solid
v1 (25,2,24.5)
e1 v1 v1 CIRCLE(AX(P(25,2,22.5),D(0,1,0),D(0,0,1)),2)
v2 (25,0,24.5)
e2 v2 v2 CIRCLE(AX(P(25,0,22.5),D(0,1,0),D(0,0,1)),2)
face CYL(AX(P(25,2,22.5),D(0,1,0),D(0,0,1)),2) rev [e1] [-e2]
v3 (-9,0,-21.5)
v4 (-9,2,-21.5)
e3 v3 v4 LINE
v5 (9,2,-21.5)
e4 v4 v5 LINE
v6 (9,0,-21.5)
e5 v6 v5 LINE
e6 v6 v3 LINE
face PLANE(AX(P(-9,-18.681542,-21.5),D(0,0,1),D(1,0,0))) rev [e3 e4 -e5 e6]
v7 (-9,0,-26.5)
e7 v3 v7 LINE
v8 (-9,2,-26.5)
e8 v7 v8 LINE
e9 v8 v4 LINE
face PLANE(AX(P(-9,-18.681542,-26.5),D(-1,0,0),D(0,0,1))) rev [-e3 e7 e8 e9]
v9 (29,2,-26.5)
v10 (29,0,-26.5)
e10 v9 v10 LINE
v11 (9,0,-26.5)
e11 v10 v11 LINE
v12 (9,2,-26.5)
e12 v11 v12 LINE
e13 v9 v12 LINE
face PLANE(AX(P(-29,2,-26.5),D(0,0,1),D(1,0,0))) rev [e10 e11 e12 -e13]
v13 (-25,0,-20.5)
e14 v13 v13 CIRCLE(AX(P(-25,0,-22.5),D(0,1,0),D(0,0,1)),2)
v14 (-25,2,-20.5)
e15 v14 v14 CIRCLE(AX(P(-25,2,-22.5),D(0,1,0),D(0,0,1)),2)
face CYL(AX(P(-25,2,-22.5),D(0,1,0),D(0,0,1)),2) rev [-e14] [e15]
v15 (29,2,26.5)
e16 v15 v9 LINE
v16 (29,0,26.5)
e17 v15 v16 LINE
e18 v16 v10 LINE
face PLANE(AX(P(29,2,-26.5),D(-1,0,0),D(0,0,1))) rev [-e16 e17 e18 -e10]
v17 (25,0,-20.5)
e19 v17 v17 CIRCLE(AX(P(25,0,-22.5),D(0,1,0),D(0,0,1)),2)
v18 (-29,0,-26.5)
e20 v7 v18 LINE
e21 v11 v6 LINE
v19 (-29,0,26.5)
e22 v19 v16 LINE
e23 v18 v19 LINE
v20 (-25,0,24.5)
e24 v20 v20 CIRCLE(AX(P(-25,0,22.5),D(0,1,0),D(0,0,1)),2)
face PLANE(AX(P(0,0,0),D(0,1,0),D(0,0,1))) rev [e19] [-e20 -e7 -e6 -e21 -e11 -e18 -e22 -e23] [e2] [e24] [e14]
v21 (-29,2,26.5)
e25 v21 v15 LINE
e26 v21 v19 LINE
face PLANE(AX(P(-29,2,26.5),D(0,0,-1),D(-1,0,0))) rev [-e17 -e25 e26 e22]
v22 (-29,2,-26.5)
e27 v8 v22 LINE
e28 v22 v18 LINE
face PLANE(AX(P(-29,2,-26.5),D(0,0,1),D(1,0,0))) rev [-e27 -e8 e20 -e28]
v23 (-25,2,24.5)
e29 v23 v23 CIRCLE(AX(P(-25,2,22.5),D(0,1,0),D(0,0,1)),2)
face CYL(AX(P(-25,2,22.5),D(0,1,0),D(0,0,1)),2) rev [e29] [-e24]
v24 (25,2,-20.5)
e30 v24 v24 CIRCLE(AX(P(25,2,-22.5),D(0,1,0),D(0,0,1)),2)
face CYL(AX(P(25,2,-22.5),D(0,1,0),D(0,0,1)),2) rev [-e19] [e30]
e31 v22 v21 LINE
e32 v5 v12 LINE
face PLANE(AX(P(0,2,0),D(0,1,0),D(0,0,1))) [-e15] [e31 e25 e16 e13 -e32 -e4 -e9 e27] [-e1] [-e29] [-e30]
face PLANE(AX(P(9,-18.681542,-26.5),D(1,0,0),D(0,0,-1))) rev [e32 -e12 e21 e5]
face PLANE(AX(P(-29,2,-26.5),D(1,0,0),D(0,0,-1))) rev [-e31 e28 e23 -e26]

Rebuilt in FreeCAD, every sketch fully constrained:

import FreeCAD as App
import Part
import Sketcher

V = App.Vector
Q = App.Units.Quantity

doc = App.newDocument("Part")
params = doc.addObject("Spreadsheet::Sheet", "Params")
for row, (alias, value) in enumerate([
    ("sketch1_width", "58 mm"),
    ("sketch1_height", "53 mm"),
    ("pad1_length", "2 mm"),
    ("sketch2_diameter", "4 mm"),
    ("hole_diameter", "4 mm"),
    ("hole_depth", "2 mm"),
    ("sketch3_width", "18 mm"),
    ("sketch3_height", "5 mm"),
    ("pocket1_length", "2 mm"),
], start=1):
    params.set(f"A{row}", alias)
    params.set(f"B{row}", "=" + value)
    params.setAlias(f"B{row}", alias)

body = doc.addObject("PartDesign::Body", "Body")

# Sketch on XZ plane
sketch1 = body.newObject("Sketcher::SketchObject", "Sketch")
sketch1.AttachmentSupport = (doc.getObject("XZ_Plane"), [""])
sketch1.MapMode = "FlatFace"
sketch1.addGeometry(Part.LineSegment(V(-29, -26, 0), V(-29, 26, 0)), False)
sketch1.addGeometry(Part.LineSegment(V(-29, 26, 0), V(29, 26, 0)), False)
sketch1.addGeometry(Part.LineSegment(V(29, 26, 0), V(29, -26, 0)), False)
sketch1.addGeometry(Part.LineSegment(V(29, -26, 0), V(-29, -26, 0)), False)
sketch1.addConstraint(Sketcher.Constraint("Coincident", 0, 2, 1, 1))
sketch1.addConstraint(Sketcher.Constraint("Coincident", 1, 2, 2, 1))
sketch1.addConstraint(Sketcher.Constraint("Coincident", 2, 2, 3, 1))
sketch1.addConstraint(Sketcher.Constraint("Coincident", 3, 2, 0, 1))
sketch1.addConstraint(Sketcher.Constraint("Vertical", 0))
sketch1.addConstraint(Sketcher.Constraint("Horizontal", 1))
sketch1.addConstraint(Sketcher.Constraint("Vertical", 2))
sketch1.addConstraint(Sketcher.Constraint("Horizontal", 3))
sketch1.addConstraint(Sketcher.Constraint("Symmetric", 0, 2, 2, 2, -1, 1))
sketch1.addConstraint(Sketcher.Constraint("DistanceX", 1, 1, 1, 2, Q("58 mm")))
sketch1.addConstraint(Sketcher.Constraint("DistanceY", 0, 1, 0, 2, Q("53 mm")))
sketch1.setExpression("Constraints[9]", "Params.sketch1_width")
sketch1.setExpression("Constraints[10]", "Params.sketch1_height")
pad1 = body.newObject("PartDesign::Pad", "Pad")
pad1.Profile = sketch1
pad1.setExpression("Length", "Params.pad1_length")
pad1.Reversed = True

# Sketch on XZ plane
sketch2 = body.newObject("Sketcher::SketchObject", "Sketch001")
sketch2.AttachmentSupport = (doc.getObject("XZ_Plane"), [""])
sketch2.MapMode = "FlatFace"
sketch2.AttachmentOffset = App.Placement(V(0, 0, -2), App.Rotation())
sketch2.addGeometry(Part.Circle(V(25, -22.5, 0), V(0, 0, 1), 2), False)
sketch2.addGeometry(Part.Circle(V(-25, -22.5, 0), V(0, 0, 1), 2), False)
sketch2.addGeometry(Part.Circle(V(-25, 22.5, 0), V(0, 0, 1), 2), False)
sketch2.addGeometry(Part.Circle(V(25, 22.5, 0), V(0, 0, 1), 2), False)
sketch2.addConstraint(Sketcher.Constraint("Equal", 0, 1))
sketch2.addConstraint(Sketcher.Constraint("Equal", 1, 2))
sketch2.addConstraint(Sketcher.Constraint("Equal", 2, 3))
sketch2.addConstraint(Sketcher.Constraint("Symmetric", 0, 3, 2, 3, -1, 1))
sketch2.addConstraint(Sketcher.Constraint("Symmetric", 1, 3, 3, 3, -1, 1))
sketch2.addConstraint(Sketcher.Constraint("Symmetric", 0, 3, 1, 3, -2))
sketch2.addConstraint(Sketcher.Constraint("Diameter", 0, Q("4 mm")))
sketch2.addConstraint(Sketcher.Constraint("DistanceX", -1, 1, 0, 3, Q("25 mm")))
sketch2.addConstraint(Sketcher.Constraint("DistanceY", 1, 3, 2, 3, Q("45 mm")))
sketch2.setExpression("Constraints[6]", "Params.sketch2_diameter")
doc.recompute()
hole = body.newObject("PartDesign::Hole", "Hole")
hole.Profile = sketch2
hole.ThreadType = "None"
hole.setExpression("Diameter", "Params.hole_diameter")
hole.DepthType = "Dimension"
hole.setExpression("Depth", "Params.hole_depth")
hole.DrillPoint = "Flat"
hole.Reversed = True

# Sketch on XZ plane
sketch3 = body.newObject("Sketcher::SketchObject", "Sketch002")
sketch3.AttachmentSupport = (doc.getObject("XZ_Plane"), [""])
sketch3.MapMode = "FlatFace"
sketch3.AttachmentOffset = App.Placement(V(0, 0, -2), App.Rotation())
sketch3.addGeometry(Part.LineSegment(V(-9, -26, 0), V(-9, -22, 0)), False)
sketch3.addGeometry(Part.LineSegment(V(-9, -22, 0), V(9, -22, 0)), False)
sketch3.addGeometry(Part.LineSegment(V(9, -22, 0), V(9, -26, 0)), False)
sketch3.addGeometry(Part.LineSegment(V(9, -26, 0), V(-9, -26, 0)), False)
sketch3.addConstraint(Sketcher.Constraint("Coincident", 0, 2, 1, 1))
sketch3.addConstraint(Sketcher.Constraint("Coincident", 1, 2, 2, 1))
sketch3.addConstraint(Sketcher.Constraint("Coincident", 2, 2, 3, 1))
sketch3.addConstraint(Sketcher.Constraint("Coincident", 3, 2, 0, 1))
sketch3.addConstraint(Sketcher.Constraint("Vertical", 0))
sketch3.addConstraint(Sketcher.Constraint("Horizontal", 1))
sketch3.addConstraint(Sketcher.Constraint("Vertical", 2))
sketch3.addConstraint(Sketcher.Constraint("Horizontal", 3))
sketch3.addConstraint(Sketcher.Constraint("DistanceX", 1, 1, 1, 2, Q("18 mm")))
sketch3.addConstraint(Sketcher.Constraint("DistanceY", 0, 1, 0, 2, Q("5 mm")))
sketch3.addConstraint(Sketcher.Constraint("DistanceX", 0, 2, -1, 1, Q("9 mm")))
sketch3.addConstraint(Sketcher.Constraint("DistanceY", 0, 2, -1, 1, Q("21.5 mm")))
sketch3.setExpression("Constraints[8]", "Params.sketch3_width")
sketch3.setExpression("Constraints[9]", "Params.sketch3_height")
pocket1 = body.newObject("PartDesign::Pocket", "Pocket")
pocket1.Profile = sketch3
pocket1.setExpression("Length", "Params.pocket1_length")
pocket1.Reversed = True

doc.recompute()
